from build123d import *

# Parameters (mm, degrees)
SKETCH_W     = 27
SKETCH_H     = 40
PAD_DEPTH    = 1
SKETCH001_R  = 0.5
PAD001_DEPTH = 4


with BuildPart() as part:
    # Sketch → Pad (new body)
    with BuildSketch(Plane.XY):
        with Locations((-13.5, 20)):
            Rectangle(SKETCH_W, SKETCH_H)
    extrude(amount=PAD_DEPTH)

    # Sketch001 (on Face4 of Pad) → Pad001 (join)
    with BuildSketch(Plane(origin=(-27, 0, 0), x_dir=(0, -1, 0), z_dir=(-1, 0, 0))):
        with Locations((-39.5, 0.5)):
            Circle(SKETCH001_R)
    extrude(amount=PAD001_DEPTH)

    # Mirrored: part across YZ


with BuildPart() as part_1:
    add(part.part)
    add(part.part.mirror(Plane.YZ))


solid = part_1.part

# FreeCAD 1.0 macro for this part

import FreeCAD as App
import Part
import Sketcher

V = App.Vector

doc = App.newDocument("Part")
body = doc.addObject("PartDesign::Body", "Body")

# Sketch on XY plane
sketch1 = doc.addObject("Sketcher::SketchObject", "Sketch")
body.addObject(sketch1)
sketch1.AttachmentSupport = (doc.XY_Plane, [""])
sketch1.MapMode = "FlatFace"
sketch1.addGeometry(Part.LineSegment(V(-27, 40, 0), V(-27, 0, 0)), False)
sketch1.addGeometry(Part.LineSegment(V(-27, 0, 0), V(0, 0, 0)), False)
sketch1.addGeometry(Part.LineSegment(V(0, 0, 0), V(0, 40, 0)), False)
sketch1.addGeometry(Part.LineSegment(V(0, 40, 0), V(-27, 40, 0)), False)
sketch1.addConstraint(Sketcher.Constraint("Coincident", 0, 2, 1, 1))
sketch1.addConstraint(Sketcher.Constraint("Coincident", 1, 2, 2, 1))
sketch1.addConstraint(Sketcher.Constraint("Coincident", 2, 2, 3, 1))
sketch1.addConstraint(Sketcher.Constraint("Coincident", 3, 2, 0, 1))
sketch1.addConstraint(Sketcher.Constraint("Vertical", 0))
sketch1.addConstraint(Sketcher.Constraint("Horizontal", 1))
sketch1.addConstraint(Sketcher.Constraint("Vertical", 2))
sketch1.addConstraint(Sketcher.Constraint("Horizontal", 3))
sketch1.addConstraint(Sketcher.Constraint("Coincident", 1, 2, -1, 1))
sketch1.addConstraint(Sketcher.Constraint("DistanceX", 1, 1, 1, 2, 27.0))
sketch1.addConstraint(Sketcher.Constraint("DistanceY", 0, 2, 0, 1, 40.0))
pad1 = doc.addObject("PartDesign::Pad", "Pad")
body.addObject(pad1)
pad1.Profile = sketch1
pad1.Length = 1

# Sketch on YZ plane
sketch2 = doc.addObject("Sketcher::SketchObject", "Sketch001")
body.addObject(sketch2)
sketch2.AttachmentSupport = (doc.YZ_Plane, [""])
sketch2.MapMode = "FlatFace"
sketch2.AttachmentOffset = App.Placement(V(0, 0, -27), App.Rotation())
sketch2.addGeometry(Part.Circle(V(39.5, 0.5, 0), V(0, 0, 1), 0.5), False)
sketch2.addConstraint(Sketcher.Constraint("Diameter", 0, 1.0))
sketch2.addConstraint(Sketcher.Constraint("DistanceX", -1, 1, 0, 3, 39.5))
sketch2.addConstraint(Sketcher.Constraint("DistanceY", -1, 1, 0, 3, 0.5))
pad2 = doc.addObject("PartDesign::Pad", "Pad001")
body.addObject(pad2)
pad2.Profile = sketch2
pad2.Length = 4
pad2.Reversed = True
body2 = doc.addObject("PartDesign::Body", "Body001")
doc.recompute()

body2.BaseFeature = body
doc.recompute()

mirroring = doc.addObject("Part::Mirroring", "Mirroring")
mirroring.Source = body
mirroring.Base = V(0, 0, 0)
mirroring.Normal = V(1, 0, 0)
body3 = doc.addObject("PartDesign::Body", "Body002")
body3.BaseFeature = mirroring
boolean = doc.addObject("PartDesign::Boolean", "Boolean")
body2.addObject(boolean)
boolean.Type = "Fuse"
boolean.addObjects([body3])
doc.recompute()
mirroring.Visibility = False

doc.recompute()
